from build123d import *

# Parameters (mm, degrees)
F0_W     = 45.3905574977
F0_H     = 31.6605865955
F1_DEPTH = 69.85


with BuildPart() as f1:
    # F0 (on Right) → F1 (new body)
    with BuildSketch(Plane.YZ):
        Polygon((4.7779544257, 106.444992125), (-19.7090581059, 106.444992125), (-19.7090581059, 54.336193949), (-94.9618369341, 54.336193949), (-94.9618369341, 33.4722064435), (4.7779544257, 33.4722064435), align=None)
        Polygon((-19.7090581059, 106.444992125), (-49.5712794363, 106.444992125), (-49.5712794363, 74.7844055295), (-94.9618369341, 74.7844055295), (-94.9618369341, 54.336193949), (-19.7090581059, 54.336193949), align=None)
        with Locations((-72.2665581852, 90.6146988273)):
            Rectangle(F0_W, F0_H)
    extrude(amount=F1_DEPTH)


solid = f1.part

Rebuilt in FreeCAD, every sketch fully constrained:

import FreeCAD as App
import Part
import Sketcher

V = App.Vector
Q = App.Units.Quantity


def add_polygon(sketch, points):
    """Adds a closed chain of lines whose ends are joined by coincident constraints."""
    first, n = sketch.GeometryCount, len(points)
    for a, b in zip(points, points[1:] + points[:1]):
        sketch.addGeometry(Part.LineSegment(App.Vector(*a, 0), App.Vector(*b, 0)), False)
    for i in range(n):
        sketch.addConstraint(Sketcher.Constraint("Coincident", first + i, 2, first + (i + 1) % n, 1))

doc = App.newDocument("Part")
body = doc.addObject("PartDesign::Body", "Body")

# Sketch on YZ plane
sketch1 = body.newObject("Sketcher::SketchObject", "Sketch")
sketch1.AttachmentSupport = (doc.getObject("YZ_Plane"), [""])
sketch1.MapMode = "FlatFace"
add_polygon(sketch1, [(4.777954, 106.444992), (-94.961837, 106.444992), (-94.961837, 33.472206), (4.777954, 33.472206)])  # lines 0-3
sketch1.addConstraint([
    Sketcher.Constraint("Horizontal", 0),
    Sketcher.Constraint("Vertical", 1),
    Sketcher.Constraint("Horizontal", 2),
    Sketcher.Constraint("Vertical", 3),
    Sketcher.Constraint("DistanceX", 0, 2, 0, 1, 99.739791),
    Sketcher.Constraint("DistanceY", 1, 2, 1, 1, 72.972786),
    Sketcher.Constraint("DistanceX", 0, 2, -1, 1, 94.961837),
    Sketcher.Constraint("DistanceY", -1, 1, 0, 2, 106.444992),
])
pad1 = body.newObject("PartDesign::Pad", "Pad")
pad1.Profile = sketch1
pad1.Length = Q("2.75 in")

doc.recompute()
